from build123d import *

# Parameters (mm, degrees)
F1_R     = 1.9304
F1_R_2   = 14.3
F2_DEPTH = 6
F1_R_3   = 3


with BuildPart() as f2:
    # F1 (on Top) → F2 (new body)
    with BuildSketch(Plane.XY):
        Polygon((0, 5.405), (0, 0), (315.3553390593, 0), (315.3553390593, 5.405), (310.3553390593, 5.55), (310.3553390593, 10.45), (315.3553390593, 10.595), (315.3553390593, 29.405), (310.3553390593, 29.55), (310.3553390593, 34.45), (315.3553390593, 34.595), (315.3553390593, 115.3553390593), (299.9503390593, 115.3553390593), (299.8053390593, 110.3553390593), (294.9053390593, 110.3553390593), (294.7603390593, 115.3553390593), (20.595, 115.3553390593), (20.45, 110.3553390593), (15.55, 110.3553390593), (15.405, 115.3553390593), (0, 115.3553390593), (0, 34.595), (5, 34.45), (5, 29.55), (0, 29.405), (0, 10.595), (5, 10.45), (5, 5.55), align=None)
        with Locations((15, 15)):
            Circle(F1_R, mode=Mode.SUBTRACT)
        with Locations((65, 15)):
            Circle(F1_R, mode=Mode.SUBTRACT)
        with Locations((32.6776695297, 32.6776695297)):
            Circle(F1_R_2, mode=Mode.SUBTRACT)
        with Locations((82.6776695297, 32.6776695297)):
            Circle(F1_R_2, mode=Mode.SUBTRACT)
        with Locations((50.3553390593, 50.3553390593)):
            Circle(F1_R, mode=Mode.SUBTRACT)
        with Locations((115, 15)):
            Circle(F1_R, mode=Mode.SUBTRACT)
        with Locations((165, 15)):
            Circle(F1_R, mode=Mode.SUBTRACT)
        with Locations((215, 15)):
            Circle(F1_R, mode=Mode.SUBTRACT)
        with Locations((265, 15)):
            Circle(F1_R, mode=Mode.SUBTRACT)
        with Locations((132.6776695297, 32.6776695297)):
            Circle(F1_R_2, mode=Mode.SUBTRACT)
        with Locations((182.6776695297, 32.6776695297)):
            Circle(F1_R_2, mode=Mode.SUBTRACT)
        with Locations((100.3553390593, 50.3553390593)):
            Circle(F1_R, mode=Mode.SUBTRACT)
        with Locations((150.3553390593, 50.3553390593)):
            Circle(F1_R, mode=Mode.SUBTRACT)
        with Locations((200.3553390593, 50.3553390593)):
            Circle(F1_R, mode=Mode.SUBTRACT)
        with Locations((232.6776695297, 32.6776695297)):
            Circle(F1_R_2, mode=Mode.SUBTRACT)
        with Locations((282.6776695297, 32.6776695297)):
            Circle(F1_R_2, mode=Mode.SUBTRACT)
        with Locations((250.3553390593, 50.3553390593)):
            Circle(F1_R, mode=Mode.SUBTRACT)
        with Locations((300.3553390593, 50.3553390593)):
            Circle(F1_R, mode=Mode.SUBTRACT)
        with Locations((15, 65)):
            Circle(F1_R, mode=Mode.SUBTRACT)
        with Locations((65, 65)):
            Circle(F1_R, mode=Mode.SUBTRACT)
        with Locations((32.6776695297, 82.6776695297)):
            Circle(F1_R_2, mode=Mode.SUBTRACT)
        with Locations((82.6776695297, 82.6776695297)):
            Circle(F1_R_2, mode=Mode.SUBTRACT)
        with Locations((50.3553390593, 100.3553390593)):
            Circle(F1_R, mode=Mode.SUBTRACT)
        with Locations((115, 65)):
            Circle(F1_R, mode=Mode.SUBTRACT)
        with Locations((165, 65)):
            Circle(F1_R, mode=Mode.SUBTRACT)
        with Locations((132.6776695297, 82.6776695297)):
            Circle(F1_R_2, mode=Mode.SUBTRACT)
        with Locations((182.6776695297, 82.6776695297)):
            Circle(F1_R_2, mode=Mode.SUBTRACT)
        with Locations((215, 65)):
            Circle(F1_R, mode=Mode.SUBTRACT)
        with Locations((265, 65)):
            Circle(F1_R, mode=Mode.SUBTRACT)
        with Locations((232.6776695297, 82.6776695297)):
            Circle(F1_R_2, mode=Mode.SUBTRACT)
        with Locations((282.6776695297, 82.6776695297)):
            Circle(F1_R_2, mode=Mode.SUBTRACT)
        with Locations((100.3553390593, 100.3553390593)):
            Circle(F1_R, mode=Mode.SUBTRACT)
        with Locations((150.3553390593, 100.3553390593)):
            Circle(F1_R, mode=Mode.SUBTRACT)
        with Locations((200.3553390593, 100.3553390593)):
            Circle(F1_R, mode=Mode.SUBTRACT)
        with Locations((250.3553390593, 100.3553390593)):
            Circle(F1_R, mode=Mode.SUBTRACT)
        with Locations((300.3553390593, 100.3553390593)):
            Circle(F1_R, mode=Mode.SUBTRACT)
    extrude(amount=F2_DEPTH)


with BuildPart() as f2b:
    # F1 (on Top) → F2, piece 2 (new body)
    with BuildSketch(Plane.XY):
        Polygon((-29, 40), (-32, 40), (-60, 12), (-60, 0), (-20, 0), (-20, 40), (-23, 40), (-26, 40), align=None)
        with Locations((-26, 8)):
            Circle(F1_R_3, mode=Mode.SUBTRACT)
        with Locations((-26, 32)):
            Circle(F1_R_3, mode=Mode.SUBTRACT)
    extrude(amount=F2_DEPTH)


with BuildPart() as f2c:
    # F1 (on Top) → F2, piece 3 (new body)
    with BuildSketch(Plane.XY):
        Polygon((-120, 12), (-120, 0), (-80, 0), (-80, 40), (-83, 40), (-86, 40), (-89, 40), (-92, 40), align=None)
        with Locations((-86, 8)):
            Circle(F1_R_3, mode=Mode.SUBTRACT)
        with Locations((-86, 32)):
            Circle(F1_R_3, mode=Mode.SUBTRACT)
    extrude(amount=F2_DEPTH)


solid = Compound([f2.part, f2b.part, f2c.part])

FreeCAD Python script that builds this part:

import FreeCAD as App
import Part
import Sketcher
from FreeCAD import Vector

doc = App.newDocument("Part")
body = doc.addObject("PartDesign::Body", "Body")

sketch1 = body.newObject("Sketcher::SketchObject", "Sketch")
sketch1.AttachmentSupport = (doc.getObject("XY_Plane"), [""])
sketch1.MapMode = "FlatFace"
sketch1.addGeometry(Part.LineSegment(Vector(0, 5.4, 0), Vector(0, 0, 0)), False)
sketch1.addGeometry(Part.LineSegment(Vector(0, 0, 0), Vector(315.4, 0, 0)), False)
sketch1.addGeometry(Part.LineSegment(Vector(315.4, 0, 0), Vector(315.4, 5.4, 0)), False)
sketch1.addGeometry(Part.LineSegment(Vector(315.4, 5.4, 0), Vector(310.4, 5.5, 0)), False)
sketch1.addGeometry(Part.LineSegment(Vector(310.4, 5.5, 0), Vector(310.4, 10.4, 0)), False)
sketch1.addGeometry(Part.LineSegment(Vector(310.4, 10.4, 0), Vector(315.4, 10.6, 0)), False)
sketch1.addGeometry(Part.LineSegment(Vector(315.4, 10.6, 0), Vector(315.4, 29.4, 0)), False)
sketch1.addGeometry(Part.LineSegment(Vector(315.4, 29.4, 0), Vector(310.4, 29.6, 0)), False)
sketch1.addGeometry(Part.LineSegment(Vector(310.4, 29.6, 0), Vector(310.4, 34.5, 0)), False)
sketch1.addGeometry(Part.LineSegment(Vector(310.4, 34.5, 0), Vector(315.4, 34.6, 0)), False)
sketch1.addGeometry(Part.LineSegment(Vector(315.4, 34.6, 0), Vector(315.4, 115.4, 0)), False)
sketch1.addGeometry(Part.LineSegment(Vector(315.4, 115.4, 0), Vector(300, 115.4, 0)), False)
sketch1.addGeometry(Part.LineSegment(Vector(300, 115.4, 0), Vector(299.8, 110.4, 0)), False)
sketch1.addGeometry(Part.LineSegment(Vector(299.8, 110.4, 0), Vector(294.9, 110.4, 0)), False)
sketch1.addGeometry(Part.LineSegment(Vector(294.9, 110.4, 0), Vector(294.8, 115.4, 0)), False)
sketch1.addGeometry(Part.LineSegment(Vector(294.8, 115.4, 0), Vector(20.6, 115.4, 0)), False)
sketch1.addGeometry(Part.LineSegment(Vector(20.6, 115.4, 0), Vector(20.4, 110.4, 0)), False)
sketch1.addGeometry(Part.LineSegment(Vector(20.4, 110.4, 0), Vector(15.6, 110.4, 0)), False)
sketch1.addGeometry(Part.LineSegment(Vector(15.6, 110.4, 0), Vector(15.4, 115.4, 0)), False)
sketch1.addGeometry(Part.LineSegment(Vector(15.4, 115.4, 0), Vector(0, 115.4, 0)), False)
sketch1.addGeometry(Part.LineSegment(Vector(0, 115.4, 0), Vector(0, 34.6, 0)), False)
sketch1.addGeometry(Part.LineSegment(Vector(0, 34.6, 0), Vector(5, 34.5, 0)), False)
sketch1.addGeometry(Part.LineSegment(Vector(5, 34.5, 0), Vector(5, 29.6, 0)), False)
sketch1.addGeometry(Part.LineSegment(Vector(5, 29.6, 0), Vector(0, 29.4, 0)), False)
sketch1.addGeometry(Part.LineSegment(Vector(0, 29.4, 0), Vector(0, 10.6, 0)), False)
sketch1.addGeometry(Part.LineSegment(Vector(0, 10.6, 0), Vector(5, 10.4, 0)), False)
sketch1.addGeometry(Part.LineSegment(Vector(5, 10.4, 0), Vector(5, 5.5, 0)), False)
sketch1.addGeometry(Part.LineSegment(Vector(5, 5.5, 0), Vector(0, 5.4, 0)), False)
sketch1.addGeometry(Part.Circle(Vector(15, 15, 0), Vector(0, 0, 1), 1.9), False)
sketch1.addGeometry(Part.Circle(Vector(65, 15, 0), Vector(0, 0, 1), 1.9), False)
sketch1.addGeometry(Part.Circle(Vector(32.7, 32.7, 0), Vector(0, 0, 1), 14.3), False)
sketch1.addGeometry(Part.Circle(Vector(82.7, 32.7, 0), Vector(0, 0, 1), 14.3), False)
sketch1.addGeometry(Part.Circle(Vector(115, 15, 0), Vector(0, 0, 1), 1.9), False)
sketch1.addGeometry(Part.Circle(Vector(132.7, 32.7, 0), Vector(0, 0, 1), 14.3), False)
sketch1.addGeometry(Part.Circle(Vector(50.4, 50.4, 0), Vector(0, 0, 1), 1.9), False)
sketch1.addGeometry(Part.Circle(Vector(100.4, 50.4, 0), Vector(0, 0, 1), 1.9), False)
sketch1.addGeometry(Part.Circle(Vector(150.4, 50.4, 0), Vector(0, 0, 1), 1.9), False)
sketch1.addGeometry(Part.Circle(Vector(165, 15, 0), Vector(0, 0, 1), 1.9), False)
sketch1.addGeometry(Part.Circle(Vector(215, 15, 0), Vector(0, 0, 1), 1.9), False)
sketch1.addGeometry(Part.Circle(Vector(182.7, 32.7, 0), Vector(0, 0, 1), 14.3), False)
sketch1.addGeometry(Part.Circle(Vector(265, 15, 0), Vector(0, 0, 1), 1.9), False)
sketch1.addGeometry(Part.Circle(Vector(232.7, 32.7, 0), Vector(0, 0, 1), 14.3), False)
sketch1.addGeometry(Part.Circle(Vector(282.7, 32.7, 0), Vector(0, 0, 1), 14.3), False)
sketch1.addGeometry(Part.Circle(Vector(200.4, 50.4, 0), Vector(0, 0, 1), 1.9), False)
sketch1.addGeometry(Part.Circle(Vector(250.4, 50.4, 0), Vector(0, 0, 1), 1.9), False)
sketch1.addGeometry(Part.Circle(Vector(300.4, 50.4, 0), Vector(0, 0, 1), 1.9), False)
sketch1.addGeometry(Part.Circle(Vector(15, 65, 0), Vector(0, 0, 1), 1.9), False)
sketch1.addGeometry(Part.Circle(Vector(65, 65, 0), Vector(0, 0, 1), 1.9), False)
sketch1.addGeometry(Part.Circle(Vector(115, 65, 0), Vector(0, 0, 1), 1.9), False)
sketch1.addGeometry(Part.Circle(Vector(32.7, 82.7, 0), Vector(0, 0, 1), 14.3), False)
sketch1.addGeometry(Part.Circle(Vector(82.7, 82.7, 0), Vector(0, 0, 1), 14.3), False)
sketch1.addGeometry(Part.Circle(Vector(50.4, 100.4, 0), Vector(0, 0, 1), 1.9), False)
sketch1.addGeometry(Part.Circle(Vector(132.7, 82.7, 0), Vector(0, 0, 1), 14.3), False)
sketch1.addGeometry(Part.Circle(Vector(100.4, 100.4, 0), Vector(0, 0, 1), 1.9), False)
sketch1.addGeometry(Part.Circle(Vector(150.4, 100.4, 0), Vector(0, 0, 1), 1.9), False)
sketch1.addGeometry(Part.Circle(Vector(165, 65, 0), Vector(0, 0, 1), 1.9), False)
sketch1.addGeometry(Part.Circle(Vector(215, 65, 0), Vector(0, 0, 1), 1.9), False)
sketch1.addGeometry(Part.Circle(Vector(265, 65, 0), Vector(0, 0, 1), 1.9), False)
sketch1.addGeometry(Part.Circle(Vector(182.7, 82.7, 0), Vector(0, 0, 1), 14.3), False)
sketch1.addGeometry(Part.Circle(Vector(200.4, 100.4, 0), Vector(0, 0, 1), 1.9), False)
sketch1.addGeometry(Part.Circle(Vector(232.7, 82.7, 0), Vector(0, 0, 1), 14.3), False)
sketch1.addGeometry(Part.Circle(Vector(282.7, 82.7, 0), Vector(0, 0, 1), 14.3), False)
sketch1.addGeometry(Part.Circle(Vector(250.4, 100.4, 0), Vector(0, 0, 1), 1.9), False)
sketch1.addGeometry(Part.Circle(Vector(300.4, 100.4, 0), Vector(0, 0, 1), 1.9), False)
sketch1.addConstraint(Sketcher.Constraint("Coincident", 0, 2, 1, 1))
sketch1.addConstraint(Sketcher.Constraint("Coincident", 1, 2, 2, 1))
sketch1.addConstraint(Sketcher.Constraint("Coincident", 2, 2, 3, 1))
sketch1.addConstraint(Sketcher.Constraint("Coincident", 3, 2, 4, 1))
sketch1.addConstraint(Sketcher.Constraint("Coincident", 4, 2, 5, 1))
sketch1.addConstraint(Sketcher.Constraint("Coincident", 5, 2, 6, 1))
sketch1.addConstraint(Sketcher.Constraint("Coincident", 6, 2, 7, 1))
sketch1.addConstraint(Sketcher.Constraint("Coincident", 7, 2, 8, 1))
sketch1.addConstraint(Sketcher.Constraint("Coincident", 8, 2, 9, 1))
sketch1.addConstraint(Sketcher.Constraint("Coincident", 9, 2, 10, 1))
sketch1.addConstraint(Sketcher.Constraint("Coincident", 10, 2, 11, 1))
sketch1.addConstraint(Sketcher.Constraint("Coincident", 11, 2, 12, 1))
sketch1.addConstraint(Sketcher.Constraint("Coincident", 12, 2, 13, 1))
sketch1.addConstraint(Sketcher.Constraint("Coincident", 13, 2, 14, 1))
sketch1.addConstraint(Sketcher.Constraint("Coincident", 14, 2, 15, 1))
sketch1.addConstraint(Sketcher.Constraint("Coincident", 15, 2, 16, 1))
sketch1.addConstraint(Sketcher.Constraint("Coincident", 16, 2, 17, 1))
sketch1.addConstraint(Sketcher.Constraint("Coincident", 17, 2, 18, 1))
sketch1.addConstraint(Sketcher.Constraint("Coincident", 18, 2, 19, 1))
sketch1.addConstraint(Sketcher.Constraint("Coincident", 19, 2, 20, 1))
sketch1.addConstraint(Sketcher.Constraint("Coincident", 20, 2, 21, 1))
sketch1.addConstraint(Sketcher.Constraint("Coincident", 21, 2, 22, 1))
sketch1.addConstraint(Sketcher.Constraint("Coincident", 22, 2, 23, 1))
sketch1.addConstraint(Sketcher.Constraint("Coincident", 23, 2, 24, 1))
sketch1.addConstraint(Sketcher.Constraint("Coincident", 24, 2, 25, 1))
sketch1.addConstraint(Sketcher.Constraint("Coincident", 25, 2, 26, 1))
sketch1.addConstraint(Sketcher.Constraint("Coincident", 26, 2, 27, 1))
sketch1.addConstraint(Sketcher.Constraint("Coincident", 27, 2, 0, 1))
sketch1.addConstraint(Sketcher.Constraint("Vertical", 0))
sketch1.addConstraint(Sketcher.Constraint("Horizontal", 1))
sketch1.addConstraint(Sketcher.Constraint("Vertical", 2))
sketch1.addConstraint(Sketcher.Constraint("Vertical", 4))
sketch1.addConstraint(Sketcher.Constraint("Vertical", 6))
sketch1.addConstraint(Sketcher.Constraint("Vertical", 8))
sketch1.addConstraint(Sketcher.Constraint("Vertical", 10))
sketch1.addConstraint(Sketcher.Constraint("Horizontal", 11))
sketch1.addConstraint(Sketcher.Constraint("Horizontal", 13))
sketch1.addConstraint(Sketcher.Constraint("Horizontal", 15))
sketch1.addConstraint(Sketcher.Constraint("Horizontal", 17))
sketch1.addConstraint(Sketcher.Constraint("Horizontal", 19))
sketch1.addConstraint(Sketcher.Constraint("Vertical", 20))
sketch1.addConstraint(Sketcher.Constraint("Vertical", 22))
sketch1.addConstraint(Sketcher.Constraint("Vertical", 24))
sketch1.addConstraint(Sketcher.Constraint("Vertical", 26))
sketch1.addConstraint(Sketcher.Constraint("Coincident", 0, 2, -1, 1))
sketch1.addConstraint(Sketcher.Constraint("Equal", 28, 29))
sketch1.addConstraint(Sketcher.Constraint("Equal", 30, 31))
sketch1.addConstraint(Sketcher.Constraint("Equal", 29, 32))
sketch1.addConstraint(Sketcher.Constraint("Equal", 31, 33))
sketch1.addConstraint(Sketcher.Constraint("Equal", 32, 34))
sketch1.addConstraint(Sketcher.Constraint("Equal", 34, 35))
sketch1.addConstraint(Sketcher.Constraint("Equal", 35, 36))
sketch1.addConstraint(Sketcher.Constraint("Equal", 36, 37))
sketch1.addConstraint(Sketcher.Constraint("Equal", 37, 38))
sketch1.addConstraint(Sketcher.Constraint("Equal", 33, 39))
sketch1.addConstraint(Sketcher.Constraint("Equal", 38, 40))
sketch1.addConstraint(Sketcher.Constraint("Equal", 39, 41))
sketch1.addConstraint(Sketcher.Constraint("Equal", 41, 42))
sketch1.addConstraint(Sketcher.Constraint("Equal", 40, 43))
sketch1.addConstraint(Sketcher.Constraint("Equal", 43, 44))
sketch1.addConstraint(Sketcher.Constraint("Equal", 44, 45))
sketch1.addConstraint(Sketcher.Constraint("Equal", 45, 46))
sketch1.addConstraint(Sketcher.Constraint("Equal", 46, 47))
sketch1.addConstraint(Sketcher.Constraint("Equal", 47, 48))
sketch1.addConstraint(Sketcher.Constraint("Equal", 42, 49))
sketch1.addConstraint(Sketcher.Constraint("Equal", 49, 50))
sketch1.addConstraint(Sketcher.Constraint("Equal", 48, 51))
sketch1.addConstraint(Sketcher.Constraint("Equal", 50, 52))
sketch1.addConstraint(Sketcher.Constraint("Equal", 51, 53))
sketch1.addConstraint(Sketcher.Constraint("Equal", 53, 54))
sketch1.addConstraint(Sketcher.Constraint("Equal", 54, 55))
sketch1.addConstraint(Sketcher.Constraint("Equal", 55, 56))
sketch1.addConstraint(Sketcher.Constraint("Equal", 56, 57))
sketch1.addConstraint(Sketcher.Constraint("Equal", 52, 58))
sketch1.addConstraint(Sketcher.Constraint("Equal", 57, 59))
sketch1.addConstraint(Sketcher.Constraint("Equal", 58, 60))
sketch1.addConstraint(Sketcher.Constraint("Equal", 60, 61))
sketch1.addConstraint(Sketcher.Constraint("Equal", 59, 62))
sketch1.addConstraint(Sketcher.Constraint("Equal", 62, 63))
sketch1.addConstraint(Sketcher.Constraint("PointOnObject", 19, 2, -2))
sketch1.addConstraint(Sketcher.Constraint("PointOnObject", 23, 2, -2))
sketch1.addConstraint(Sketcher.Constraint("Parallel", 3, 7))
sketch1.addConstraint(Sketcher.Constraint("Parallel", 5, 9))
sketch1.addConstraint(Sketcher.Constraint("Perpendicular", 7, 12))
sketch1.addConstraint(Sketcher.Constraint("Perpendicular", 9, 14))
sketch1.addConstraint(Sketcher.Constraint("Parallel", 12, 16))
sketch1.addConstraint(Sketcher.Constraint("Parallel", 14, 18))
sketch1.addConstraint(Sketcher.Constraint("Perpendicular", 16, 21))
sketch1.addConstraint(Sketcher.Constraint("Perpendicular", 18, 23))
sketch1.addConstraint(Sketcher.Constraint("Parallel", 21, 25))
sketch1.addConstraint(Sketcher.Constraint("Parallel", 23, 27))
sketch1.addConstraint(Sketcher.Constraint("Horizontal", 28, 3, 29, 3))
sketch1.addConstraint(Sketcher.Constraint("Horizontal", 30, 3, 31, 3))
sketch1.addConstraint(Sketcher.Constraint("Horizontal", 29, 3, 32, 3))
sketch1.addConstraint(Sketcher.Constraint("Horizontal", 31, 3, 33, 3))
sketch1.addConstraint(Sketcher.Constraint("Horizontal", 34, 3, 35, 3))
sketch1.addConstraint(Sketcher.Constraint("Horizontal", 35, 3, 36, 3))
sketch1.addConstraint(Sketcher.Constraint("Horizontal", 32, 3, 37, 3))
sketch1.addConstraint(Sketcher.Constraint("Horizontal", 37, 3, 38, 3))
sketch1.addConstraint(Sketcher.Constraint("Horizontal", 33, 3, 39, 3))
sketch1.addConstraint(Sketcher.Constraint("Horizontal", 38, 3, 40, 3))
sketch1.addConstraint(Sketcher.Constraint("Horizontal", 39, 3, 41, 3))
sketch1.addConstraint(Sketcher.Constraint("Horizontal", 41, 3, 42, 3))
sketch1.addConstraint(Sketcher.Constraint("Horizontal", 36, 3, 43, 3))
sketch1.addConstraint(Sketcher.Constraint("Horizontal", 43, 3, 44, 3))
sketch1.addConstraint(Sketcher.Constraint("Horizontal", 44, 3, 45, 3))
sketch1.addConstraint(Sketcher.Constraint("Horizontal", 46, 3, 47, 3))
sketch1.addConstraint(Sketcher.Constraint("Horizontal", 47, 3, 48, 3))
sketch1.addConstraint(Sketcher.Constraint("Horizontal", 49, 3, 50, 3))
sketch1.addConstraint(Sketcher.Constraint("Horizontal", 50, 3, 52, 3))
sketch1.addConstraint(Sketcher.Constraint("Horizontal", 51, 3, 53, 3))
sketch1.addConstraint(Sketcher.Constraint("Horizontal", 53, 3, 54, 3))
sketch1.addConstraint(Sketcher.Constraint("Horizontal", 48, 3, 55, 3))
sketch1.addConstraint(Sketcher.Constraint("Horizontal", 55, 3, 56, 3))
sketch1.addConstraint(Sketcher.Constraint("Horizontal", 56, 3, 57, 3))
sketch1.addConstraint(Sketcher.Constraint("Horizontal", 52, 3, 58, 3))
sketch1.addConstraint(Sketcher.Constraint("Horizontal", 54, 3, 59, 3))
sketch1.addConstraint(Sketcher.Constraint("Horizontal", 58, 3, 60, 3))
sketch1.addConstraint(Sketcher.Constraint("Horizontal", 60, 3, 61, 3))
sketch1.addConstraint(Sketcher.Constraint("Horizontal", 59, 3, 62, 3))
sketch1.addConstraint(Sketcher.Constraint("Horizontal", 62, 3, 63, 3))
sketch1.addConstraint(Sketcher.Constraint("Horizontal", 11, 2, 14, 2))
sketch1.addConstraint(Sketcher.Constraint("Horizontal", 13, 2, 16, 2))
sketch1.addConstraint(Sketcher.Constraint("Horizontal", 15, 2, 18, 2))
sketch1.addConstraint(Sketcher.Constraint("Horizontal", 9, 2, 20, 2))
sketch1.addConstraint(Sketcher.Constraint("Horizontal", 8, 2, 21, 2))
sketch1.addConstraint(Sketcher.Constraint("Horizontal", 7, 2, 22, 2))
sketch1.addConstraint(Sketcher.Constraint("Horizontal", 6, 2, 23, 2))
sketch1.addConstraint(Sketcher.Constraint("Horizontal", 5, 2, 24, 2))
sketch1.addConstraint(Sketcher.Constraint("Horizontal", 4, 2, 25, 2))
sketch1.addConstraint(Sketcher.Constraint("Horizontal", 3, 2, 26, 2))
sketch1.addConstraint(Sketcher.Constraint("Horizontal", 2, 2, 27, 2))
sketch1.addConstraint(Sketcher.Constraint("Vertical", 28, 3, 46, 3))
sketch1.addConstraint(Sketcher.Constraint("Vertical", 29, 3, 47, 3))
sketch1.addConstraint(Sketcher.Constraint("Vertical", 32, 3, 48, 3))
sketch1.addConstraint(Sketcher.Constraint("Vertical", 30, 3, 49, 3))
sketch1.addConstraint(Sketcher.Constraint("Vertical", 31, 3, 50, 3))
sketch1.addConstraint(Sketcher.Constraint("Vertical", 34, 3, 51, 3))
sketch1.addConstraint(Sketcher.Constraint("Vertical", 33, 3, 52, 3))
sketch1.addConstraint(Sketcher.Constraint("Vertical", 35, 3, 53, 3))
sketch1.addConstraint(Sketcher.Constraint("Vertical", 36, 3, 54, 3))
sketch1.addConstraint(Sketcher.Constraint("Vertical", 37, 3, 55, 3))
sketch1.addConstraint(Sketcher.Constraint("Vertical", 38, 3, 56, 3))
sketch1.addConstraint(Sketcher.Constraint("Vertical", 40, 3, 57, 3))
sketch1.addConstraint(Sketcher.Constraint("Vertical", 39, 3, 58, 3))
sketch1.addConstraint(Sketcher.Constraint("Vertical", 43, 3, 59, 3))
sketch1.addConstraint(Sketcher.Constraint("Vertical", 41, 3, 60, 3))
sketch1.addConstraint(Sketcher.Constraint("Vertical", 42, 3, 61, 3))
sketch1.addConstraint(Sketcher.Constraint("Vertical", 44, 3, 62, 3))
sketch1.addConstraint(Sketcher.Constraint("Vertical", 45, 3, 63, 3))
sketch1.addConstraint(Sketcher.Constraint("Vertical", 2, 2, 5, 2))
sketch1.addConstraint(Sketcher.Constraint("Vertical", 4, 2, 7, 2))
sketch1.addConstraint(Sketcher.Constraint("Equal", 13, 17))
sketch1.addConstraint(Sketcher.Constraint("Equal", 11, 19))
sketch1.addConstraint(Sketcher.Constraint("Equal", 17, 4))
sketch1.addConstraint(Sketcher.Constraint("Equal", 4, 8))
sketch1.addConstraint(Sketcher.Constraint("Equal", 9, 12))
sketch1.addConstraint(Sketcher.Constraint("Diameter", 30, 28.6))
sketch1.addConstraint(Sketcher.Constraint("DistanceX", 13, 2, 13, 1, 4.9))
sketch1.addConstraint(Sketcher.Constraint("DistanceX", -1, 1, 28, 3, 15.0))
sketch1.addConstraint(Sketcher.Constraint("DistanceY", -1, 1, 28, 3, 15.0))
sketch1.addConstraint(Sketcher.Constraint("DistanceX", -1, 1, 29, 3, 65.0))
sketch1.addConstraint(Sketcher.Constraint("DistanceX", -1, 1, 32, 3, 115.0))
sketch1.addConstraint(Sketcher.Constraint("DistanceX", -1, 1, 37, 3, 165.0))
sketch1.addConstraint(Sketcher.Constraint("DistanceX", -1, 1, 38, 3, 215.0))
sketch1.addConstraint(Sketcher.Constraint("DistanceX", -1, 1, 40, 3, 265.0))
sketch1.addConstraint(Sketcher.Constraint("DistanceY", -1, 1, 46, 3, 65.0))
sketch1.addConstraint(Sketcher.Constraint("DistanceX", -1, 1, 21, 2, 5.0))
sketch1.addConstraint(Sketcher.Constraint("Diameter", 28, 3.8608))
sketch1.addConstraint(Sketcher.Constraint("DistanceY", 6, 1, 6, 2, 18.81))
sketch1.addConstraint(Sketcher.Constraint("DistanceX", 11, 2, 11, 1, 15.405))
sketch1.addConstraint(Sketcher.Constraint("DistanceY", 0, 2, 0, 1, 5.405))
sketch1.addConstraint(Sketcher.Constraint("DistanceY", -1, 1, 3, 2, 5.55))
sketch1.addConstraint(Sketcher.Constraint("DistanceX", 1, 1, 1, 2, 315.355339))
sketch1.addConstraint(Sketcher.Constraint("DistanceY", 10, 1, 10, 2, 80.760339))
sketch1.addConstraint(Sketcher.Constraint("DistanceX", -1, 1, 30, 3, 32.67767))
sketch1.addConstraint(Sketcher.Constraint("DistanceY", -1, 1, 30, 3, 32.67767))
sketch1.addConstraint(Sketcher.Constraint("DistanceX", -1, 1, 31, 3, 82.67767))
sketch1.addConstraint(Sketcher.Constraint("DistanceX", -1, 1, 33, 3, 132.67767))
sketch1.addConstraint(Sketcher.Constraint("DistanceX", -1, 1, 34, 3, 50.355339))
sketch1.addConstraint(Sketcher.Constraint("DistanceY", -1, 1, 34, 3, 50.355339))
sketch1.addConstraint(Sketcher.Constraint("DistanceX", -1, 1, 35, 3, 100.355339))
sketch1.addConstraint(Sketcher.Constraint("DistanceX", -1, 1, 36, 3, 150.355339))
sketch1.addConstraint(Sketcher.Constraint("DistanceX", -1, 1, 39, 3, 182.67767))
sketch1.addConstraint(Sketcher.Constraint("DistanceX", -1, 1, 41, 3, 232.67767))
sketch1.addConstraint(Sketcher.Constraint("DistanceX", -1, 1, 42, 3, 282.67767))
sketch1.addConstraint(Sketcher.Constraint("DistanceX", -1, 1, 43, 3, 200.355339))
sketch1.addConstraint(Sketcher.Constraint("DistanceX", -1, 1, 44, 3, 250.355339))
sketch1.addConstraint(Sketcher.Constraint("DistanceX", -1, 1, 45, 3, 300.355339))
sketch1.addConstraint(Sketcher.Constraint("DistanceY", -1, 1, 49, 3, 82.67767))
sketch1.addConstraint(Sketcher.Constraint("DistanceY", -1, 1, 51, 3, 100.355339))
pad1 = body.newObject("PartDesign::Pad", "Pad")
pad1.Profile = sketch1
pad1.Length = 6
body2 = doc.addObject("PartDesign::Body", "Body001")

sketch2 = body2.newObject("Sketcher::SketchObject", "Sketch001")
sketch2.AttachmentSupport = (doc.getObject("XY_Plane001"), [""])
sketch2.MapMode = "FlatFace"
sketch2.addGeometry(Part.LineSegment(Vector(-32, 40, 0), Vector(-60, 12, 0)), False)
sketch2.addGeometry(Part.LineSegment(Vector(-60, 12, 0), Vector(-60, 0, 0)), False)
sketch2.addGeometry(Part.LineSegment(Vector(-60, 0, 0), Vector(-20, 0, 0)), False)
sketch2.addGeometry(Part.LineSegment(Vector(-20, 0, 0), Vector(-20, 40, 0)), False)
sketch2.addGeometry(Part.LineSegment(Vector(-20, 40, 0), Vector(-32, 40, 0)), False)
sketch2.addGeometry(Part.Circle(Vector(-26, 8, 0), Vector(0, 0, 1), 3), False)
sketch2.addGeometry(Part.Circle(Vector(-26, 32, 0), Vector(0, 0, 1), 3), False)
sketch2.addConstraint(Sketcher.Constraint("Coincident", 0, 2, 1, 1))
sketch2.addConstraint(Sketcher.Constraint("Coincident", 1, 2, 2, 1))
sketch2.addConstraint(Sketcher.Constraint("Coincident", 2, 2, 3, 1))
sketch2.addConstraint(Sketcher.Constraint("Coincident", 3, 2, 4, 1))
sketch2.addConstraint(Sketcher.Constraint("Coincident", 4, 2, 0, 1))
sketch2.addConstraint(Sketcher.Constraint("Vertical", 1))
sketch2.addConstraint(Sketcher.Constraint("Horizontal", 2))
sketch2.addConstraint(Sketcher.Constraint("Vertical", 3))
sketch2.addConstraint(Sketcher.Constraint("Horizontal", 4))
sketch2.addConstraint(Sketcher.Constraint("Equal", 5, 6))
sketch2.addConstraint(Sketcher.Constraint("PointOnObject", 1, 2, -1))
sketch2.addConstraint(Sketcher.Constraint("Vertical", 5, 3, 6, 3))
sketch2.addConstraint(Sketcher.Constraint("Equal", 4, 1))
sketch2.addConstraint(Sketcher.Constraint("Equal", 2, 3))
sketch2.addConstraint(Sketcher.Constraint("Diameter", 5, 6.0))
sketch2.addConstraint(Sketcher.Constraint("DistanceX", 2, 1, 2, 2, 40.0))
sketch2.addConstraint(Sketcher.Constraint("DistanceX", 4, 2, 4, 1, 12.0))
sketch2.addConstraint(Sketcher.Constraint("DistanceX", 5, 3, -1, 1, 26.0))
sketch2.addConstraint(Sketcher.Constraint("DistanceY", -1, 1, 5, 3, 8.0))
sketch2.addConstraint(Sketcher.Constraint("DistanceY", -1, 1, 6, 3, 32.0))
sketch2.addConstraint(Sketcher.Constraint("DistanceX", 0, 2, -1, 1, 60.0))
pad2 = body2.newObject("PartDesign::Pad", "Pad001")
pad2.Profile = sketch2
pad2.Length = 6
body3 = doc.addObject("PartDesign::Body", "Body002")

sketch3 = body3.newObject("Sketcher::SketchObject", "Sketch002")
sketch3.AttachmentSupport = (doc.getObject("XY_Plane002"), [""])
sketch3.MapMode = "FlatFace"
sketch3.addGeometry(Part.LineSegment(Vector(-120, 12, 0), Vector(-120, 0, 0)), False)
sketch3.addGeometry(Part.LineSegment(Vector(-120, 0, 0), Vector(-80, 0, 0)), False)
sketch3.addGeometry(Part.LineSegment(Vector(-80, 0, 0), Vector(-80, 40, 0)), False)
sketch3.addGeometry(Part.LineSegment(Vector(-80, 40, 0), Vector(-92, 40, 0)), False)
sketch3.addGeometry(Part.LineSegment(Vector(-92, 40, 0), Vector(-120, 12, 0)), False)
sketch3.addGeometry(Part.Circle(Vector(-86, 8, 0), Vector(0, 0, 1), 3), False)
sketch3.addGeometry(Part.Circle(Vector(-86, 32, 0), Vector(0, 0, 1), 3), False)
sketch3.addConstraint(Sketcher.Constraint("Coincident", 0, 2, 1, 1))
sketch3.addConstraint(Sketcher.Constraint("Coincident", 1, 2, 2, 1))
sketch3.addConstraint(Sketcher.Constraint("Coincident", 2, 2, 3, 1))
sketch3.addConstraint(Sketcher.Constraint("Coincident", 3, 2, 4, 1))
sketch3.addConstraint(Sketcher.Constraint("Coincident", 4, 2, 0, 1))
sketch3.addConstraint(Sketcher.Constraint("Vertical", 0))
sketch3.addConstraint(Sketcher.Constraint("Horizontal", 1))
sketch3.addConstraint(Sketcher.Constraint("Vertical", 2))
sketch3.addConstraint(Sketcher.Constraint("Horizontal", 3))
sketch3.addConstraint(Sketcher.Constraint("Equal", 5, 6))
sketch3.addConstraint(Sketcher.Constraint("PointOnObject", 0, 2, -1))
sketch3.addConstraint(Sketcher.Constraint("Vertical", 5, 3, 6, 3))
sketch3.addConstraint(Sketcher.Constraint("Equal", 3, 0))
sketch3.addConstraint(Sketcher.Constraint("Equal", 1, 2))
sketch3.addConstraint(Sketcher.Constraint("Diameter", 5, 6.0))
sketch3.addConstraint(Sketcher.Constraint("DistanceX", 1, 1, 1, 2, 40.0))
sketch3.addConstraint(Sketcher.Constraint("DistanceX", 3, 2, 3, 1, 12.0))
sketch3.addConstraint(Sketcher.Constraint("DistanceX", 5, 3, -1, 1, 86.0))
sketch3.addConstraint(Sketcher.Constraint("DistanceY", -1, 1, 5, 3, 8.0))
sketch3.addConstraint(Sketcher.Constraint("DistanceY", -1, 1, 6, 3, 32.0))
sketch3.addConstraint(Sketcher.Constraint("DistanceX", 0, 2, -1, 1, 120.0))
pad3 = body3.newObject("PartDesign::Pad", "Pad002")
pad3.Profile = sketch3
pad3.Length = 6

doc.recompute()
